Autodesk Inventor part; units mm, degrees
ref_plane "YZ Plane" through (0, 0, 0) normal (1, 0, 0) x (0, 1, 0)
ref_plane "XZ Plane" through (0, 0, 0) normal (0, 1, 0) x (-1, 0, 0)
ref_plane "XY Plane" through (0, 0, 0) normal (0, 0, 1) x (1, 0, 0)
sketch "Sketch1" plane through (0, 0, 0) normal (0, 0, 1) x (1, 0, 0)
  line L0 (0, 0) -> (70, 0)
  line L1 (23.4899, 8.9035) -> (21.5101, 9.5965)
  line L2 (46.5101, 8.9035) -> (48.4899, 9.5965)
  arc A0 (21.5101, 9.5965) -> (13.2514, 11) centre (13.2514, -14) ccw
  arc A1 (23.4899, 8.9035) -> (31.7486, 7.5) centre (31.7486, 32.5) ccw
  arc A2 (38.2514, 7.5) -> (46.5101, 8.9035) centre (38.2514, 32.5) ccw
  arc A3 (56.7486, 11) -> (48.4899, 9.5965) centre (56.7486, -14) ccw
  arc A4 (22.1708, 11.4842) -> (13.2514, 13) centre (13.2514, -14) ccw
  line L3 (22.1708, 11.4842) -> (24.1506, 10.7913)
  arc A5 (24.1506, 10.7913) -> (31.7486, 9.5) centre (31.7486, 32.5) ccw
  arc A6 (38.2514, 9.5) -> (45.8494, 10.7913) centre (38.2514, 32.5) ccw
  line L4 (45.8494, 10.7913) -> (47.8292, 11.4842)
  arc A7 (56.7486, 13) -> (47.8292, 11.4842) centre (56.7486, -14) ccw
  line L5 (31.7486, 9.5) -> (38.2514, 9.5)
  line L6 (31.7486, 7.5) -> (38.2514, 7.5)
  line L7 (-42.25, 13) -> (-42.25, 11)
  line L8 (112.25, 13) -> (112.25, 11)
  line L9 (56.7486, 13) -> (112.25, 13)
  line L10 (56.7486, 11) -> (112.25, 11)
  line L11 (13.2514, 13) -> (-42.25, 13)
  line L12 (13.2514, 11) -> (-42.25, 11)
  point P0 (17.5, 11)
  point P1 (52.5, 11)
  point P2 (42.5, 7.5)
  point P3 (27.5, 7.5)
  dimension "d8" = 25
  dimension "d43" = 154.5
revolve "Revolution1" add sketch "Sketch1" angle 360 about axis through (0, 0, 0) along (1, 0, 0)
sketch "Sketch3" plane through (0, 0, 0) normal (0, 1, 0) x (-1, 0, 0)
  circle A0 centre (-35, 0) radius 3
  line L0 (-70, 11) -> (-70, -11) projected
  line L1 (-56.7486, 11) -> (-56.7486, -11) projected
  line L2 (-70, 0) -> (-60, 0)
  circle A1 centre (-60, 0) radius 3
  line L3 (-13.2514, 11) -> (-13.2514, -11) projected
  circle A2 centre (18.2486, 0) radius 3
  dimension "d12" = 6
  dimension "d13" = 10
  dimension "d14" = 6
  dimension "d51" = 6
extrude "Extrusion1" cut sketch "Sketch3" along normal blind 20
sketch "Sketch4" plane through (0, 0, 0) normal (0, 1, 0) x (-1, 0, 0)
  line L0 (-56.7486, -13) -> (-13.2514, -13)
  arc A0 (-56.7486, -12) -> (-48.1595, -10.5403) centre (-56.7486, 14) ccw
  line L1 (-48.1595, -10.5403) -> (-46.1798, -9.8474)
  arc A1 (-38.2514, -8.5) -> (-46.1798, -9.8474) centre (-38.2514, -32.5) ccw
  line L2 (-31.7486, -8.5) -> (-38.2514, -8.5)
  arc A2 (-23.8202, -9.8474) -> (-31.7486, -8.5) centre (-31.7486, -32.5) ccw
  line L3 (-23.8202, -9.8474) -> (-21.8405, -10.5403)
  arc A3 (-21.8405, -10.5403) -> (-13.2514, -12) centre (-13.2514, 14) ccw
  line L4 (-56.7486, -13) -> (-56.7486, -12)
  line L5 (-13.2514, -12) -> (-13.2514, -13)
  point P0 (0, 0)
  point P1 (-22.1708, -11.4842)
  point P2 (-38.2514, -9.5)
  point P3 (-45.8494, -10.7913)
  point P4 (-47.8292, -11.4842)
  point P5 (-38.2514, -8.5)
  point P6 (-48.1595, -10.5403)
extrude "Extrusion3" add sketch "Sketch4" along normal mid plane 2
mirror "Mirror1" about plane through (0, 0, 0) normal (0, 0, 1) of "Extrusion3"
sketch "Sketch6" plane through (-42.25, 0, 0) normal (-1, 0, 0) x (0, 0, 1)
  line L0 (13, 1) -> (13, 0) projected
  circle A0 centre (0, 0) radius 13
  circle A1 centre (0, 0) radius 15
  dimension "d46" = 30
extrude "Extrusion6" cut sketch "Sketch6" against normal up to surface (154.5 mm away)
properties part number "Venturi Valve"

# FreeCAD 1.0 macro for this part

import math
import FreeCAD as App
import Part
import Sketcher

V = App.Vector
Q = App.Units.Quantity

doc = App.newDocument("Part")
body = doc.addObject("PartDesign::Body", "Body")

# Sketch on XY plane
sketch1 = body.newObject("Sketcher::SketchObject", "Sketch")
sketch1.AttachmentSupport = (doc.getObject("XY_Plane"), [""])
sketch1.MapMode = "FlatFace"
sketch1.addGeometry([
    Part.LineSegment(V(21.5101, 9.5965, 0), V(23.4899, 8.9035, 0)),  # 0
    Part.ArcOfCircle(Part.Circle(V(31.7486, 32.5, 0), V(0, 0, 1), 25.000019), math.radians(-109.289884), math.radians(-90)),  # 1
    Part.LineSegment(V(31.7486, 7.5, 0), V(38.2514, 7.5, 0)),  # 2
    Part.ArcOfCircle(Part.Circle(V(38.2514, 32.5, 0), V(0, 0, 1), 25), math.radians(-90), math.radians(-70.710116)),  # 3
    Part.LineSegment(V(46.5101, 8.9035, 0), V(48.4899, 9.5965, 0)),  # 4
    Part.ArcOfCircle(Part.Circle(V(56.7486, -14, 0), V(0, 0, 1), 25), math.radians(90), math.radians(109.289884)),  # 5
    Part.LineSegment(V(56.7486, 11, 0), V(112.25, 11, 0)),  # 6
    Part.LineSegment(V(112.25, 11, 0), V(112.25, 13, 0)),  # 7
    Part.LineSegment(V(112.25, 13, 0), V(56.7486, 13, 0)),  # 8
    Part.ArcOfCircle(Part.Circle(V(56.7486, -14, 0), V(0, 0, 1), 27), math.radians(90), math.radians(109.289906)),  # 9
    Part.LineSegment(V(47.8292, 11.4842, 0), V(45.8494, 10.7913, 0)),  # 10
    Part.ArcOfCircle(Part.Circle(V(38.251578, 32.497893, 0), V(0, 0, 1), 22.997893), math.radians(-90.000443), math.radians(-70.708743)),  # 11
    Part.LineSegment(V(38.2514, 9.5, 0), V(31.7486, 9.5, 0)),  # 12
    Part.ArcOfCircle(Part.Circle(V(31.749128, 32.502048, 0), V(0, 0, 1), 23.002048), math.radians(-109.289498), math.radians(-90.001316)),  # 13
    Part.LineSegment(V(24.1506, 10.7913, 0), V(22.1708, 11.4842, 0)),  # 14
    Part.ArcOfCircle(Part.Circle(V(13.2514, -14, 0), V(0, 0, 1), 27.000003), math.radians(70.710094), math.radians(90)),  # 15
    Part.LineSegment(V(13.2514, 13, 0), V(-42.25, 13, 0)),  # 16
    Part.LineSegment(V(-42.25, 13, 0), V(-42.25, 11, 0)),  # 17
    Part.LineSegment(V(-42.25, 11, 0), V(13.2514, 11, 0)),  # 18
    Part.ArcOfCircle(Part.Circle(V(13.2514, -14, 0), V(0, 0, 1), 25.000019), math.radians(70.710116), math.radians(90)),  # 19
], False)
sketch1.addConstraint([
    Sketcher.Constraint("Coincident", 0, 2, 1, 1),
    Sketcher.Constraint("Coincident", 1, 2, 2, 1),
    Sketcher.Constraint("Coincident", 2, 2, 3, 1),
    Sketcher.Constraint("Coincident", 3, 2, 4, 1),
    Sketcher.Constraint("Coincident", 4, 2, 5, 2),
    Sketcher.Constraint("Coincident", 5, 1, 6, 1),
    Sketcher.Constraint("Coincident", 6, 2, 7, 1),
    Sketcher.Constraint("Coincident", 7, 2, 8, 1),
    Sketcher.Constraint("Coincident", 8, 2, 9, 1),
    Sketcher.Constraint("Coincident", 9, 2, 10, 1),
    Sketcher.Constraint("Coincident", 10, 2, 11, 2),
    Sketcher.Constraint("Coincident", 11, 1, 12, 1),
    Sketcher.Constraint("Coincident", 12, 2, 13, 2),
    Sketcher.Constraint("Coincident", 13, 1, 14, 1),
    Sketcher.Constraint("Coincident", 14, 2, 15, 1),
    Sketcher.Constraint("Coincident", 15, 2, 16, 1),
    Sketcher.Constraint("Coincident", 16, 2, 17, 1),
    Sketcher.Constraint("Coincident", 17, 2, 18, 1),
    Sketcher.Constraint("Coincident", 18, 2, 19, 2),
    Sketcher.Constraint("Coincident", 19, 1, 0, 1),
    Sketcher.Constraint("Horizontal", 2),
    Sketcher.Constraint("Horizontal", 6),
    Sketcher.Constraint("Vertical", 7),
    Sketcher.Constraint("Horizontal", 8),
    Sketcher.Constraint("Horizontal", 12),
    Sketcher.Constraint("Horizontal", 16),
    Sketcher.Constraint("Vertical", 17),
    Sketcher.Constraint("Horizontal", 18),
    Sketcher.Constraint("Coincident", 9, 3, 5, 3),
    Sketcher.Constraint("Coincident", 19, 3, 15, 3),
    Sketcher.Constraint("Radius", 1, 25.0),
    Sketcher.Constraint("Radius", 3, 25.0),
    Sketcher.Constraint("Radius", 5, 25.0),
    Sketcher.Constraint("Radius", 19, 25.0),
    Sketcher.Constraint("Radius", 9, 27.0),
    Sketcher.Constraint("Radius", 15, 27.0),
    Sketcher.Constraint("DistanceX", 1, 3, 5, 3, 25.0),
    Sketcher.Constraint("DistanceX", 1, 2, 8, 2, 25.0),
    Sketcher.Constraint("DistanceY", 5, 3, -1, 1, 14.0),
    Sketcher.Constraint("DistanceY", 15, 3, -1, 1, 14.0),
    Sketcher.Constraint("Radius", 11, 22.998),
    Sketcher.Constraint("Radius", 13, 23.002),
    Sketcher.Constraint("DistanceY", 2, 2, 11, 1, 2.0),
    Sketcher.Constraint("DistanceY", -1, 1, 1, 3, 32.5),
    Sketcher.Constraint("DistanceX", 13, 3, 5, 3, 24.9995),
    Sketcher.Constraint("DistanceX", 15, 3, 11, 3, 25.0002),
    Sketcher.Constraint("DistanceX", -1, 1, 0, 2, 23.49),
    Sketcher.Constraint("DistanceX", -1, 1, 3, 2, 46.51),
    Sketcher.Constraint("DistanceX", -1, 1, 4, 2, 48.49),
    Sketcher.Constraint("DistanceX", -1, 1, 6, 2, 112.25),
    Sketcher.Constraint("DistanceX", 16, 2, -1, 1, 42.25),
    Sketcher.Constraint("DistanceX", -1, 1, 19, 1, 21.51),
    Sketcher.Constraint("DistanceX", 2, 1, 2, 2, 6.5028),
    Sketcher.Constraint("DistanceX", 6, 1, 6, 2, 55.5014),
    Sketcher.Constraint("DistanceX", 8, 2, 8, 1, 55.5014),
    Sketcher.Constraint("DistanceX", 12, 2, 12, 1, 6.5028),
    Sketcher.Constraint("DistanceX", 16, 2, 16, 1, 55.5014),
    Sketcher.Constraint("DistanceX", 18, 1, 18, 2, 55.5014),
    Sketcher.Constraint("DistanceX", 1, 3, 11, 3, 6.503),
    Sketcher.Constraint("DistanceX", 1, 2, 11, 3, 6.503),
    Sketcher.Constraint("DistanceY", 3, 2, 4, 2, 0.693),
    Sketcher.Constraint("DistanceX", 3, 2, 9, 2, 1.319),
    Sketcher.Constraint("DistanceY", 10, 2, 9, 2, 0.693),
    Sketcher.Constraint("DistanceX", 11, 1, 10, 2, 7.598),
    Sketcher.Constraint("DistanceX", 13, 1, 12, 2, 7.598),
    Sketcher.Constraint("DistanceY", 13, 1, 14, 2, 0.693),
])
revolution = body.newObject("PartDesign::Revolution", "Revolution")
revolution.Profile = sketch1
revolution.ReferenceAxis = (sketch1, ["H_Axis"])
revolution.Angle = 360

# Sketch on XZ plane
sketch2 = body.newObject("Sketcher::SketchObject", "Sketch001")
sketch2.AttachmentSupport = (doc.getObject("XZ_Plane"), [""])
sketch2.MapMode = "FlatFace"
sketch2.addGeometry([
    Part.Circle(V(35, 0, 0), V(0, 0, 1), 3),
    Part.Circle(V(60, 0, 0), V(0, 0, 1), 3),
    Part.Circle(V(-18.2486, 0, 0), V(0, 0, 1), 3),
], False)
sketch2.addConstraint([
    Sketcher.Constraint("Equal", 0, 1),
    Sketcher.Constraint("Equal", 1, 2),
    Sketcher.Constraint("PointOnObject", 0, 3, -1),
    Sketcher.Constraint("PointOnObject", 1, 3, -1),
    Sketcher.Constraint("PointOnObject", 2, 3, -1),
    Sketcher.Constraint("Diameter", 0, 6.0),
    Sketcher.Constraint("DistanceX", -1, 1, 0, 3, 35.0),
    Sketcher.Constraint("DistanceX", -1, 1, 1, 3, 60.0),
    Sketcher.Constraint("DistanceX", 2, 3, -1, 1, 18.2486),
])
pocket1 = body.newObject("PartDesign::Pocket", "Pocket")
pocket1.Profile = sketch2
pocket1.Length = 20

# Sketch on XZ plane
sketch3 = body.newObject("Sketcher::SketchObject", "Sketch002")
sketch3.AttachmentSupport = (doc.getObject("XZ_Plane"), [""])
sketch3.MapMode = "FlatFace"
sketch3.addGeometry([
    Part.LineSegment(V(56.7486, -12, 0), V(56.7486, -13, 0)),  # 0
    Part.LineSegment(V(56.7486, -13, 0), V(13.2514, -13, 0)),  # 1
    Part.LineSegment(V(13.2514, -13, 0), V(13.2514, -12, 0)),  # 2
    Part.ArcOfCircle(Part.Circle(V(13.2514, 14, 0), V(0, 0, 1), 25.99998), math.radians(-90), math.radians(-70.709964)),  # 3
    Part.LineSegment(V(21.8405, -10.5403, 0), V(23.8202, -9.8474, 0)),  # 4
    Part.ArcOfCircle(Part.Circle(V(31.7486, -32.5, 0), V(0, 0, 1), 23.999996), math.radians(90), math.radians(109.290024)),  # 5
    Part.LineSegment(V(31.7486, -8.5, 0), V(38.2514, -8.5, 0)),  # 6
    Part.ArcOfCircle(Part.Circle(V(38.2514, -32.5, 0), V(0, 0, 1), 24), math.radians(70.709976), math.radians(90)),  # 7
    Part.LineSegment(V(46.1798, -9.8474, 0), V(48.1595, -10.5403, 0)),  # 8
    Part.ArcOfCircle(Part.Circle(V(56.7486, 14, 0), V(0, 0, 1), 26), math.radians(-109.290036), math.radians(-90)),  # 9
], False)
sketch3.addConstraint([
    Sketcher.Constraint("Coincident", 0, 2, 1, 1),
    Sketcher.Constraint("Coincident", 1, 2, 2, 1),
    Sketcher.Constraint("Coincident", 2, 2, 3, 1),
    Sketcher.Constraint("Tangent", 3, 2, 4, 1),
    Sketcher.Constraint("Tangent", 4, 2, 5, 2),
    Sketcher.Constraint("Tangent", 5, 1, 6, 1),
    Sketcher.Constraint("Tangent", 6, 2, 7, 2),
    Sketcher.Constraint("Tangent", 7, 1, 8, 1),
    Sketcher.Constraint("Tangent", 8, 2, 9, 1),
    Sketcher.Constraint("Coincident", 9, 2, 0, 1),
    Sketcher.Constraint("Vertical", 0),
    Sketcher.Constraint("Horizontal", 1),
    Sketcher.Constraint("Vertical", 2),
    Sketcher.Constraint("Horizontal", 6),
    Sketcher.Constraint("Equal", 5, 7),
    Sketcher.Constraint("Equal", 3, 9),
    Sketcher.Constraint("Horizontal", 3, 3, 9, 3),
    Sketcher.Constraint("Horizontal", 4, 2, 7, 1),
    Sketcher.Constraint("Vertical", 9, 3, 0, 2),
    Sketcher.Constraint("Vertical", 3, 3, 1, 2),
    Sketcher.Constraint("Radius", 3, 26.0),
    Sketcher.Constraint("Radius", 5, 24.0),
    Sketcher.Constraint("DistanceY", 0, 2, 0, 1, 1.0),
    Sketcher.Constraint("DistanceY", -1, 1, 3, 3, 14.0),
    Sketcher.Constraint("DistanceX", 3, 3, 7, 3, 25.0),
    Sketcher.Constraint("DistanceY", 5, 3, -1, 1, 32.5),
    Sketcher.Constraint("Angle", 4, Q("19.2902 deg")),
    Sketcher.Constraint("DistanceX", -1, 1, 3, 3, 13.2514),
])
pad1 = body.newObject("PartDesign::Pad", "Pad")
pad1.Profile = sketch3
pad1.Length = 2
pad1.Midplane = True
doc.recompute()

mirrored = body.newObject("PartDesign::Mirrored", "Mirrored")
mirrored.Originals = [pad1]
mirrored.MirrorPlane = (doc.getObject("XY_Plane"), [""])
body.Tip = mirrored

# Sketch on YZ plane
sketch4 = body.newObject("Sketcher::SketchObject", "Sketch003")
sketch4.AttachmentSupport = (doc.getObject("YZ_Plane"), [""])
sketch4.MapMode = "FlatFace"
sketch4.AttachmentOffset = App.Placement(V(0, 0, -42.25), App.Rotation())
sketch4.addGeometry([
    Part.Circle(V(0, 0, 0), V(0, 0, 1), 15),
    Part.Circle(V(0, 0, 0), V(0, 0, 1), 13),
], False)
sketch4.addConstraint([
    Sketcher.Constraint("Coincident", 0, 3, -1, 1),
    Sketcher.Constraint("Coincident", 1, 3, -1, 1),
    Sketcher.Constraint("Diameter", 0, 30.0),
    Sketcher.Constraint("Diameter", 1, 26.0),
])
pocket2 = body.newObject("PartDesign::Pocket", "Pocket001")
pocket2.Profile = sketch4
pocket2.Length = 154.5
pocket2.Reversed = True

doc.recompute()
